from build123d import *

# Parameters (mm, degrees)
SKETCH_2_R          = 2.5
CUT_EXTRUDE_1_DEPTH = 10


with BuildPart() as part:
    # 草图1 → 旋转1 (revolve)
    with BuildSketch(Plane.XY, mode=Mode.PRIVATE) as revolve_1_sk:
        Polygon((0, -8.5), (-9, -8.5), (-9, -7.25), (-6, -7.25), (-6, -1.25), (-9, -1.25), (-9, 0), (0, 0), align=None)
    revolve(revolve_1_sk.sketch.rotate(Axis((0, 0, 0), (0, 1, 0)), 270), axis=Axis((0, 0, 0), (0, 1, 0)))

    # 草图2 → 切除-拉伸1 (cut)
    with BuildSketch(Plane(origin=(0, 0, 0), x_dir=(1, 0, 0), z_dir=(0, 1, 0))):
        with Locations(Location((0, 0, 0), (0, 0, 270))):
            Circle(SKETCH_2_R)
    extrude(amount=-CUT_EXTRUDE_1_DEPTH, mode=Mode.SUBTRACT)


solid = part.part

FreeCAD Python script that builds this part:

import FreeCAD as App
import Part
import Sketcher

V = App.Vector
Q = App.Units.Quantity

doc = App.newDocument("Part")
params = doc.addObject("Spreadsheet::Sheet", "Params")
for row, (alias, value) in enumerate([
    ("sketch1_width", "9 mm"),
    ("sketch1_width2", "3 mm"),
    ("sketch1_height", "6 mm"),
    ("sketch1_height2", "8.5 mm"),
    ("revolution_angle", "360 deg"),
    ("sketch2_diameter", "5 mm"),
    ("pocket1_length", "10 mm"),
], start=1):
    params.set(f"A{row}", alias)
    params.set(f"B{row}", "=" + value)
    params.setAlias(f"B{row}", alias)

body = doc.addObject("PartDesign::Body", "Body")

sketch1 = body.newObject("Sketcher::SketchObject", "Sketch")
sketch1.AttachmentSupport = (doc.getObject("XY_Plane"), [""])
sketch1.MapMode = "FlatFace"
sketch1.addGeometry(Part.LineSegment(V(-9, -8.5, 0), V(0, -8.5, 0)), False)
sketch1.addGeometry(Part.LineSegment(V(0, -8.5, 0), V(0, 0, 0)), False)
sketch1.addGeometry(Part.LineSegment(V(0, 0, 0), V(-9, 0, 0)), False)
sketch1.addGeometry(Part.LineSegment(V(-9, 0, 0), V(-9, -1.2, 0)), False)
sketch1.addGeometry(Part.LineSegment(V(-9, -1.2, 0), V(-6, -1.2, 0)), False)
sketch1.addGeometry(Part.LineSegment(V(-6, -1.2, 0), V(-6, -7.2, 0)), False)
sketch1.addGeometry(Part.LineSegment(V(-6, -7.2, 0), V(-9, -7.2, 0)), False)
sketch1.addGeometry(Part.LineSegment(V(-9, -7.2, 0), V(-9, -8.5, 0)), False)
sketch1.addConstraint(Sketcher.Constraint("Coincident", 0, 2, 1, 1))
sketch1.addConstraint(Sketcher.Constraint("Coincident", 1, 2, 2, 1))
sketch1.addConstraint(Sketcher.Constraint("Coincident", 2, 2, 3, 1))
sketch1.addConstraint(Sketcher.Constraint("Coincident", 3, 2, 4, 1))
sketch1.addConstraint(Sketcher.Constraint("Coincident", 4, 2, 5, 1))
sketch1.addConstraint(Sketcher.Constraint("Coincident", 5, 2, 6, 1))
sketch1.addConstraint(Sketcher.Constraint("Coincident", 6, 2, 7, 1))
sketch1.addConstraint(Sketcher.Constraint("Coincident", 7, 2, 0, 1))
sketch1.addConstraint(Sketcher.Constraint("Horizontal", 0))
sketch1.addConstraint(Sketcher.Constraint("Vertical", 1))
sketch1.addConstraint(Sketcher.Constraint("Horizontal", 2))
sketch1.addConstraint(Sketcher.Constraint("Vertical", 3))
sketch1.addConstraint(Sketcher.Constraint("Horizontal", 4))
sketch1.addConstraint(Sketcher.Constraint("Vertical", 5))
sketch1.addConstraint(Sketcher.Constraint("Horizontal", 6))
sketch1.addConstraint(Sketcher.Constraint("Vertical", 7))
sketch1.addConstraint(Sketcher.Constraint("Coincident", 1, 2, -1, 1))
sketch1.addConstraint(Sketcher.Constraint("Vertical", 3, 2, 6, 2))
sketch1.addConstraint(Sketcher.Constraint("Equal", 3, 7))
sketch1.addConstraint(Sketcher.Constraint("DistanceX", 0, 1, 0, 2, Q("9 mm")))
sketch1.addConstraint(Sketcher.Constraint("DistanceX", 4, 1, 4, 2, Q("3 mm")))
sketch1.addConstraint(Sketcher.Constraint("DistanceY", 5, 2, 5, 1, Q("6 mm")))
sketch1.addConstraint(Sketcher.Constraint("DistanceY", 1, 1, 1, 2, Q("8.5 mm")))
sketch1.setExpression("Constraints[19]", "Params.sketch1_width")
sketch1.setExpression("Constraints[20]", "Params.sketch1_width2")
sketch1.setExpression("Constraints[21]", "Params.sketch1_height")
sketch1.setExpression("Constraints[22]", "Params.sketch1_height2")
revolution = body.newObject("PartDesign::Revolution", "Revolution")
revolution.Profile = sketch1
revolution.ReferenceAxis = (sketch1, ["V_Axis"])
revolution.setExpression("Angle", "Params.revolution_angle")

sketch2 = body.newObject("Sketcher::SketchObject", "Sketch001")
sketch2.AttachmentSupport = (doc.getObject("XZ_Plane"), [""])
sketch2.MapMode = "FlatFace"
sketch2.addGeometry(Part.Circle(V(0, 0, 0), V(0, 0, 1), 2.5), False)
sketch2.addConstraint(Sketcher.Constraint("Coincident", 0, 3, -1, 1))
sketch2.addConstraint(Sketcher.Constraint("Diameter", 0, Q("5 mm")))
sketch2.setExpression("Constraints[1]", "Params.sketch2_diameter")
pocket1 = body.newObject("PartDesign::Pocket", "Pocket")
pocket1.Profile = sketch2
pocket1.setExpression("Length", "Params.pocket1_length")
pocket1.Reversed = True

doc.recompute()
